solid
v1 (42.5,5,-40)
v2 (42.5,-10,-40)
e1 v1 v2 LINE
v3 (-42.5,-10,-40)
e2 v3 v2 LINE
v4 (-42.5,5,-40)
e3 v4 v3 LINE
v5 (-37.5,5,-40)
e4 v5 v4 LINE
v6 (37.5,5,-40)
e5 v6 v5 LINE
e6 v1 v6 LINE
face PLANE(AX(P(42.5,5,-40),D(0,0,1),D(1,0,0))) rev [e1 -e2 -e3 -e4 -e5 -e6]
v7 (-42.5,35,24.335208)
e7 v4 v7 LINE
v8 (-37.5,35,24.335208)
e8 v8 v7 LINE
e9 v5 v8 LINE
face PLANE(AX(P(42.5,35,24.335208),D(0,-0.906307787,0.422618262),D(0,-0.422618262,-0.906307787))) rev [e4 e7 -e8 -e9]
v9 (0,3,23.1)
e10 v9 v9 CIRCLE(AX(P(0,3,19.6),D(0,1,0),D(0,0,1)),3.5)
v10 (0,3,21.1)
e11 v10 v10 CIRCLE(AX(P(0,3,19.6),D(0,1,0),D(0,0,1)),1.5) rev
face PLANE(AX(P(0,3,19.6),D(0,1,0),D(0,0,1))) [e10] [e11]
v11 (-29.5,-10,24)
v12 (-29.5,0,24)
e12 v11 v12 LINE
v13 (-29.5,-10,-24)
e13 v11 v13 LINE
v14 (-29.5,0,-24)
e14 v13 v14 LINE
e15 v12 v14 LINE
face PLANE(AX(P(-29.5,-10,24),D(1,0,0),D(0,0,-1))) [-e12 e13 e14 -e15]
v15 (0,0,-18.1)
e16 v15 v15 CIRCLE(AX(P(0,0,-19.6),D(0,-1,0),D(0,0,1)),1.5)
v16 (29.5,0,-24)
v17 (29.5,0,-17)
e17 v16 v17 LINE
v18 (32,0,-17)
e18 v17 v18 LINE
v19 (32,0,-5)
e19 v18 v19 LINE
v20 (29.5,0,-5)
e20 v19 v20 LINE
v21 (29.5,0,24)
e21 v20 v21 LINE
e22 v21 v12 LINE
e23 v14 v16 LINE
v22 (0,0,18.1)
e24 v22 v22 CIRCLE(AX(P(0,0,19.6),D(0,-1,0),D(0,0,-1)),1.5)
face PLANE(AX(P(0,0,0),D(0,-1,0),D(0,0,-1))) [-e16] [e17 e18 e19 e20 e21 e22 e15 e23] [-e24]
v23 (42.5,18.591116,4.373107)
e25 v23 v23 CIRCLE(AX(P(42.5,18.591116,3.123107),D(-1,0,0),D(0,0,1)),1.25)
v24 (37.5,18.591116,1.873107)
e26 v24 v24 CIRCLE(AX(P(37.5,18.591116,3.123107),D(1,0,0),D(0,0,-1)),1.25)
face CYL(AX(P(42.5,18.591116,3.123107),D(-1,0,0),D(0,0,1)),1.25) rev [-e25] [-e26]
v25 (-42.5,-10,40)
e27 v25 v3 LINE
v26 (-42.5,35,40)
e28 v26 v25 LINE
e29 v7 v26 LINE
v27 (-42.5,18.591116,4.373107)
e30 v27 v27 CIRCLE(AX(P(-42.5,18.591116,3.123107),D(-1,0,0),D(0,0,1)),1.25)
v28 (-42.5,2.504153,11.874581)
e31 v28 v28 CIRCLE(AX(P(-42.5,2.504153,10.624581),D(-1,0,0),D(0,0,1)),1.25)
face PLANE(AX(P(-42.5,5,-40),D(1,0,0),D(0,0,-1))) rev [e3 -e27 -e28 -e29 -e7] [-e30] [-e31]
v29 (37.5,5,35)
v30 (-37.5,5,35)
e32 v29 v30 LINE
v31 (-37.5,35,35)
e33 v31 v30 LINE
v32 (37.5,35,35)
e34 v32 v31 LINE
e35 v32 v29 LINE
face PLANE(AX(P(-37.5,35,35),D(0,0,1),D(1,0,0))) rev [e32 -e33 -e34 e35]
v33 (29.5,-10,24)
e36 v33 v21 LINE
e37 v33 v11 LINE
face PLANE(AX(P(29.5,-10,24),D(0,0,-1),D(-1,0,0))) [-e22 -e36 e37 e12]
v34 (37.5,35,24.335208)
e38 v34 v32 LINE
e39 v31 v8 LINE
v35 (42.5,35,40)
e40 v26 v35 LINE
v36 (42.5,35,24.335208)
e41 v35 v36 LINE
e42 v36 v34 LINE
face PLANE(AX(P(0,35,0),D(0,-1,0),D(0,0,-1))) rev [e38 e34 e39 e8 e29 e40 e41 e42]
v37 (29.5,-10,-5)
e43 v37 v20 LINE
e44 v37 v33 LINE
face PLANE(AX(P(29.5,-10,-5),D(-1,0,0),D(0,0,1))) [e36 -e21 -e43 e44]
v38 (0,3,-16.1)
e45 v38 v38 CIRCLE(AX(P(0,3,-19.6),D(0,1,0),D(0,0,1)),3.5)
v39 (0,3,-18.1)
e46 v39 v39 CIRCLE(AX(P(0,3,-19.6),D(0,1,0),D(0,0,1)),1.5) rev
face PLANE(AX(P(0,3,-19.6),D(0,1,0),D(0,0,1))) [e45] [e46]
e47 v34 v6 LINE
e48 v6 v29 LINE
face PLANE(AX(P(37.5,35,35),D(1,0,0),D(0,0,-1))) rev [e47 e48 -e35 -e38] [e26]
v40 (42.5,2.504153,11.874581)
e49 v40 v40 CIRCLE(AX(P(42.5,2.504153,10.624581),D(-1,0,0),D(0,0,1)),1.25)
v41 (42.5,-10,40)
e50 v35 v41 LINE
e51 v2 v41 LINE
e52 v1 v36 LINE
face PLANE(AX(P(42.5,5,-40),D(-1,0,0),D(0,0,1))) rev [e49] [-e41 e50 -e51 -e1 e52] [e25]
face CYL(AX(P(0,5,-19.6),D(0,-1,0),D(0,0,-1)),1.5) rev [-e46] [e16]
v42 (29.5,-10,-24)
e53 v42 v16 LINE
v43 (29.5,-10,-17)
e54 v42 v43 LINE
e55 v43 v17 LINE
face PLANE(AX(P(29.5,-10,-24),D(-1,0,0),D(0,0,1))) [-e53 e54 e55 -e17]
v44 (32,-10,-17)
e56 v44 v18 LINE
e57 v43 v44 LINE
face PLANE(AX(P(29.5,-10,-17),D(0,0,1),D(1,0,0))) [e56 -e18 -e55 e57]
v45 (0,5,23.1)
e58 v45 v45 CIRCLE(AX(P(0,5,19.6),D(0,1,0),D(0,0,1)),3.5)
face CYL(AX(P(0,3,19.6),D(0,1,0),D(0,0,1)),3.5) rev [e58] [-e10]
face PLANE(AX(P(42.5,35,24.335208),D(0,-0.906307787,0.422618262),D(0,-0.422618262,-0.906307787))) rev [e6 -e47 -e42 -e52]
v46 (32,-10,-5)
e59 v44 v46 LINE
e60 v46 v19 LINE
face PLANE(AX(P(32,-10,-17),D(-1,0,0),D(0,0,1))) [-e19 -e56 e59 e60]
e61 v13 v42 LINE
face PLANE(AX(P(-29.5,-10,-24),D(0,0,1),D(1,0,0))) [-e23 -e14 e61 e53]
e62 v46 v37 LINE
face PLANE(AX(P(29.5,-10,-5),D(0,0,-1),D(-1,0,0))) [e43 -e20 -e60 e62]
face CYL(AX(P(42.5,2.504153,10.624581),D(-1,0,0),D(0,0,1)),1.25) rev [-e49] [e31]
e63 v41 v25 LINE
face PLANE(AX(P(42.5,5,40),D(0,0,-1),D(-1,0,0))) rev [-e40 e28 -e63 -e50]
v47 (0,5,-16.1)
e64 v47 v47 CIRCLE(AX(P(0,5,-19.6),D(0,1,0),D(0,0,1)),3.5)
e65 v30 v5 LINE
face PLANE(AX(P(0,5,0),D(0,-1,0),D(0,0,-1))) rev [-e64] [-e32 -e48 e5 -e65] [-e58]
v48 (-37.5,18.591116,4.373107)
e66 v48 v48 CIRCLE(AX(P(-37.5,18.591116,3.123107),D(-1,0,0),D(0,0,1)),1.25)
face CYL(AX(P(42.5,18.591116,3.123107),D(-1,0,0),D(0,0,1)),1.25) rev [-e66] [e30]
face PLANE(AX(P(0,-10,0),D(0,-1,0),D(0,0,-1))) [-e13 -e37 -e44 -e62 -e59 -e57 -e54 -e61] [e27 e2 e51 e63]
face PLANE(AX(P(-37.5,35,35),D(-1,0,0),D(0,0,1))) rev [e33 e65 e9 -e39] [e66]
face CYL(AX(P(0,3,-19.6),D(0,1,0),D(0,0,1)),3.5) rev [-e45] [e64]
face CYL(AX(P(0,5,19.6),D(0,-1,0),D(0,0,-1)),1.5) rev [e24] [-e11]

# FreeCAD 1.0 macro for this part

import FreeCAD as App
import Part
import Sketcher
from FreeCAD import Vector
Q = App.Units.Quantity


def add_polygon(sketch, points):
    """Adds a closed chain of lines whose ends are joined by coincident constraints."""
    first, n = sketch.GeometryCount, len(points)
    for a, b in zip(points, points[1:] + points[:1]):
        sketch.addGeometry(Part.LineSegment(App.Vector(*a, 0), App.Vector(*b, 0)), False)
    for i in range(n):
        sketch.addConstraint(Sketcher.Constraint("Coincident", first + i, 2, first + (i + 1) % n, 1))

doc = App.newDocument("Part")
body = doc.addObject("PartDesign::Body", "Body")

# Sketch on XZ plane
sketch1 = body.newObject("Sketcher::SketchObject", "Sketch")
sketch1.AttachmentSupport = (doc.getObject("XZ_Plane"), [""])
sketch1.MapMode = "FlatFace"
add_polygon(sketch1, [(-42, -40), (-42, 40), (42, 40), (42, -40)])  # lines 0-3
sketch1.addConstraint([
    Sketcher.Constraint("Vertical", 0),
    Sketcher.Constraint("Horizontal", 1),
    Sketcher.Constraint("Vertical", 2),
    Sketcher.Constraint("Horizontal", 3),
    Sketcher.Constraint("Symmetric", 0, 2, 2, 2, -1, 1),
    Sketcher.Constraint("DistanceX", 1, 1, 1, 2, 85.0),
    Sketcher.Constraint("DistanceY", 0, 1, 0, 2, 80.0),
])
pad1 = body.newObject("PartDesign::Pad", "Pad")
pad1.Profile = sketch1
pad1.Length = 5
pad1.Reversed = True

# Sketch on XZ plane
sketch2 = body.newObject("Sketcher::SketchObject", "Sketch001")
sketch2.AttachmentSupport = (doc.getObject("XZ_Plane"), [""])
sketch2.MapMode = "FlatFace"
sketch2.addGeometry([
    Part.Circle(Vector(0, 19.6, 0), Vector(0, 0, 1), 1.5),
    Part.Circle(Vector(0, -19.6, 0), Vector(0, 0, 1), 1.5),
], False)
sketch2.addConstraint([
    Sketcher.Constraint("Equal", 0, 1),
    Sketcher.Constraint("Symmetric", 0, 3, 1, 3, -1, 1),
    Sketcher.Constraint("PointOnObject", 0, 3, -2),
    Sketcher.Constraint("Diameter", 0, 3.0),
    Sketcher.Constraint("DistanceY", -1, 1, 0, 3, 19.6),
])
pocket1 = body.newObject("PartDesign::Pocket", "Pocket")
pocket1.Profile = sketch2
pocket1.Type = "ThroughAll"

# Sketch on XZ plane
sketch3 = body.newObject("Sketcher::SketchObject", "Sketch002")
sketch3.AttachmentSupport = (doc.getObject("XZ_Plane"), [""])
sketch3.MapMode = "FlatFace"
sketch3.AttachmentOffset = App.Placement(Vector(0, 0, -5), App.Rotation())
add_polygon(sketch3, [(-42, -40), (-42, 40), (42, 40), (42, -40), (38, -40), (38, 35), (-38, 35), (-38, -40)])  # lines 0-7
sketch3.addConstraint([
    Sketcher.Constraint("Vertical", 0),
    Sketcher.Constraint("Horizontal", 1),
    Sketcher.Constraint("Vertical", 2),
    Sketcher.Constraint("Horizontal", 3),
    Sketcher.Constraint("Vertical", 4),
    Sketcher.Constraint("Horizontal", 5),
    Sketcher.Constraint("Vertical", 6),
    Sketcher.Constraint("Horizontal", 7),
    Sketcher.Constraint("Symmetric", 0, 2, 2, 2, -1, 1),
    Sketcher.Constraint("Symmetric", 3, 2, 6, 2, -2),
    Sketcher.Constraint("Equal", 5, 4),
    Sketcher.Constraint("DistanceX", 1, 1, 1, 2, 85.0),
    Sketcher.Constraint("DistanceX", 3, 2, 3, 1, 5.0),
    Sketcher.Constraint("DistanceY", 0, 1, 0, 2, 80.0),
])
pad2 = body.newObject("PartDesign::Pad", "Pad001")
pad2.Profile = sketch3
pad2.Length = 30
pad2.Reversed = True

# Sketch on XZ plane
sketch4 = body.newObject("Sketcher::SketchObject", "Sketch003")
sketch4.AttachmentSupport = (doc.getObject("XZ_Plane"), [""])
sketch4.MapMode = "FlatFace"
sketch4.AttachmentOffset = App.Placement(Vector(0, 0, -5), App.Rotation())
sketch4.addGeometry([
    Part.Circle(Vector(0, -19.6, 0), Vector(0, 0, 1), 3.5),
    Part.Circle(Vector(0, 19.6, 0), Vector(0, 0, 1), 3.5),
], False)
sketch4.addConstraint([
    Sketcher.Constraint("Equal", 0, 1),
    Sketcher.Constraint("Symmetric", 0, 3, 1, 3, -1, 1),
    Sketcher.Constraint("PointOnObject", 0, 3, -2),
    Sketcher.Constraint("Diameter", 0, 7.0),
    Sketcher.Constraint("DistanceY", 0, 3, -1, 1, 19.6),
])
pocket2 = body.newObject("PartDesign::Pocket", "Pocket001")
pocket2.Profile = sketch4
pocket2.Length = 2
pocket2.Reversed = True

# Sketch on YZ plane
sketch5 = body.newObject("Sketcher::SketchObject", "Sketch004")
sketch5.AttachmentSupport = (doc.getObject("YZ_Plane"), [""])
sketch5.MapMode = "FlatFace"
sketch5.AttachmentOffset = App.Placement(Vector(0, 0, -42.5), App.Rotation())
sketch5.addGeometry(Part.Circle(Vector(2.5, 10.6, 0), Vector(0, 0, 1), 1.2), False)  # 0
sketch5.addGeometry(Part.Circle(Vector(18.6, 3.1, 0), Vector(0, 0, 1), 1.2), False)  # 1
add_polygon(sketch5, [(5, -40), (35, 24.3), (35, -40)])  # lines 2-4
sketch5.addConstraint([
    Sketcher.Constraint("Vertical", 3),
    Sketcher.Constraint("Horizontal", 4),
    Sketcher.Constraint("Equal", 0, 1),
    Sketcher.Constraint("Diameter", 0, 2.5),
    Sketcher.Constraint("DistanceX", 4, 2, 4, 1, 30.0),
    Sketcher.Constraint("Angle", 2, Q("65 deg")),
    Sketcher.Constraint("DistanceX", -1, 1, 2, 2, 35.0),
    Sketcher.Constraint("DistanceY", 3, 2, -1, 1, 40.0),
    Sketcher.Constraint("DistanceY", 1, 3, 2, 2, 21.2121),
    Sketcher.Constraint("DistanceY", -1, 1, 0, 3, 10.624581),
    Sketcher.Constraint("DistanceX", -1, 1, 0, 3, 2.504153),
    Sketcher.Constraint("DistanceX", -1, 1, 1, 3, 18.591116),
])
pocket3 = body.newObject("PartDesign::Pocket", "Pocket002")
pocket3.Profile = sketch5
pocket3.Type = "ThroughAll"
pocket3.Reversed = True

# Sketch on XZ plane
sketch6 = body.newObject("Sketcher::SketchObject", "Sketch005")
sketch6.AttachmentSupport = (doc.getObject("XZ_Plane"), [""])
sketch6.MapMode = "FlatFace"
add_polygon(sketch6, [(-42.5, 40), (-42.5, -40), (42.5, -40), (42.5, 40)])  # lines 0-3
add_polygon(sketch6, [(32, -17), (29.5, -17), (29.5, -24), (-29.5, -24), (-29.5, 24), (29.5, 24), (29.5, -5), (32, -5)])  # lines 4-11
sketch6.addConstraint([
    Sketcher.Constraint("Vertical", 0),
    Sketcher.Constraint("Horizontal", 1),
    Sketcher.Constraint("Vertical", 2),
    Sketcher.Constraint("Horizontal", 3),
    Sketcher.Constraint("Horizontal", 4),
    Sketcher.Constraint("Vertical", 5),
    Sketcher.Constraint("Horizontal", 6),
    Sketcher.Constraint("Vertical", 7),
    Sketcher.Constraint("Horizontal", 8),
    Sketcher.Constraint("Vertical", 9),
    Sketcher.Constraint("Horizontal", 10),
    Sketcher.Constraint("Vertical", 11),
    Sketcher.Constraint("Symmetric", 0, 2, 2, 2, -1, 1),
    Sketcher.Constraint("Symmetric", 5, 2, 7, 2, -1, 1),
    Sketcher.Constraint("Vertical", 5, 2, 8, 2),
    Sketcher.Constraint("DistanceX", 1, 1, 1, 2, 85.0),
    Sketcher.Constraint("DistanceX", 6, 2, 6, 1, 59.0),
    Sketcher.Constraint("DistanceY", 0, 2, 0, 1, 80.0),
    Sketcher.Constraint("DistanceY", 5, 2, 5, 1, 7.0),
    Sketcher.Constraint("DistanceY", 7, 1, 7, 2, 48.0),
    Sketcher.Constraint("DistanceY", 9, 2, 9, 1, 29.0),
    Sketcher.Constraint("DistanceX", 4, 2, 4, 1, 2.5),
])
pad3 = body.newObject("PartDesign::Pad", "Pad002")
pad3.Profile = sketch6
pad3.Length = 10

doc.recompute()
